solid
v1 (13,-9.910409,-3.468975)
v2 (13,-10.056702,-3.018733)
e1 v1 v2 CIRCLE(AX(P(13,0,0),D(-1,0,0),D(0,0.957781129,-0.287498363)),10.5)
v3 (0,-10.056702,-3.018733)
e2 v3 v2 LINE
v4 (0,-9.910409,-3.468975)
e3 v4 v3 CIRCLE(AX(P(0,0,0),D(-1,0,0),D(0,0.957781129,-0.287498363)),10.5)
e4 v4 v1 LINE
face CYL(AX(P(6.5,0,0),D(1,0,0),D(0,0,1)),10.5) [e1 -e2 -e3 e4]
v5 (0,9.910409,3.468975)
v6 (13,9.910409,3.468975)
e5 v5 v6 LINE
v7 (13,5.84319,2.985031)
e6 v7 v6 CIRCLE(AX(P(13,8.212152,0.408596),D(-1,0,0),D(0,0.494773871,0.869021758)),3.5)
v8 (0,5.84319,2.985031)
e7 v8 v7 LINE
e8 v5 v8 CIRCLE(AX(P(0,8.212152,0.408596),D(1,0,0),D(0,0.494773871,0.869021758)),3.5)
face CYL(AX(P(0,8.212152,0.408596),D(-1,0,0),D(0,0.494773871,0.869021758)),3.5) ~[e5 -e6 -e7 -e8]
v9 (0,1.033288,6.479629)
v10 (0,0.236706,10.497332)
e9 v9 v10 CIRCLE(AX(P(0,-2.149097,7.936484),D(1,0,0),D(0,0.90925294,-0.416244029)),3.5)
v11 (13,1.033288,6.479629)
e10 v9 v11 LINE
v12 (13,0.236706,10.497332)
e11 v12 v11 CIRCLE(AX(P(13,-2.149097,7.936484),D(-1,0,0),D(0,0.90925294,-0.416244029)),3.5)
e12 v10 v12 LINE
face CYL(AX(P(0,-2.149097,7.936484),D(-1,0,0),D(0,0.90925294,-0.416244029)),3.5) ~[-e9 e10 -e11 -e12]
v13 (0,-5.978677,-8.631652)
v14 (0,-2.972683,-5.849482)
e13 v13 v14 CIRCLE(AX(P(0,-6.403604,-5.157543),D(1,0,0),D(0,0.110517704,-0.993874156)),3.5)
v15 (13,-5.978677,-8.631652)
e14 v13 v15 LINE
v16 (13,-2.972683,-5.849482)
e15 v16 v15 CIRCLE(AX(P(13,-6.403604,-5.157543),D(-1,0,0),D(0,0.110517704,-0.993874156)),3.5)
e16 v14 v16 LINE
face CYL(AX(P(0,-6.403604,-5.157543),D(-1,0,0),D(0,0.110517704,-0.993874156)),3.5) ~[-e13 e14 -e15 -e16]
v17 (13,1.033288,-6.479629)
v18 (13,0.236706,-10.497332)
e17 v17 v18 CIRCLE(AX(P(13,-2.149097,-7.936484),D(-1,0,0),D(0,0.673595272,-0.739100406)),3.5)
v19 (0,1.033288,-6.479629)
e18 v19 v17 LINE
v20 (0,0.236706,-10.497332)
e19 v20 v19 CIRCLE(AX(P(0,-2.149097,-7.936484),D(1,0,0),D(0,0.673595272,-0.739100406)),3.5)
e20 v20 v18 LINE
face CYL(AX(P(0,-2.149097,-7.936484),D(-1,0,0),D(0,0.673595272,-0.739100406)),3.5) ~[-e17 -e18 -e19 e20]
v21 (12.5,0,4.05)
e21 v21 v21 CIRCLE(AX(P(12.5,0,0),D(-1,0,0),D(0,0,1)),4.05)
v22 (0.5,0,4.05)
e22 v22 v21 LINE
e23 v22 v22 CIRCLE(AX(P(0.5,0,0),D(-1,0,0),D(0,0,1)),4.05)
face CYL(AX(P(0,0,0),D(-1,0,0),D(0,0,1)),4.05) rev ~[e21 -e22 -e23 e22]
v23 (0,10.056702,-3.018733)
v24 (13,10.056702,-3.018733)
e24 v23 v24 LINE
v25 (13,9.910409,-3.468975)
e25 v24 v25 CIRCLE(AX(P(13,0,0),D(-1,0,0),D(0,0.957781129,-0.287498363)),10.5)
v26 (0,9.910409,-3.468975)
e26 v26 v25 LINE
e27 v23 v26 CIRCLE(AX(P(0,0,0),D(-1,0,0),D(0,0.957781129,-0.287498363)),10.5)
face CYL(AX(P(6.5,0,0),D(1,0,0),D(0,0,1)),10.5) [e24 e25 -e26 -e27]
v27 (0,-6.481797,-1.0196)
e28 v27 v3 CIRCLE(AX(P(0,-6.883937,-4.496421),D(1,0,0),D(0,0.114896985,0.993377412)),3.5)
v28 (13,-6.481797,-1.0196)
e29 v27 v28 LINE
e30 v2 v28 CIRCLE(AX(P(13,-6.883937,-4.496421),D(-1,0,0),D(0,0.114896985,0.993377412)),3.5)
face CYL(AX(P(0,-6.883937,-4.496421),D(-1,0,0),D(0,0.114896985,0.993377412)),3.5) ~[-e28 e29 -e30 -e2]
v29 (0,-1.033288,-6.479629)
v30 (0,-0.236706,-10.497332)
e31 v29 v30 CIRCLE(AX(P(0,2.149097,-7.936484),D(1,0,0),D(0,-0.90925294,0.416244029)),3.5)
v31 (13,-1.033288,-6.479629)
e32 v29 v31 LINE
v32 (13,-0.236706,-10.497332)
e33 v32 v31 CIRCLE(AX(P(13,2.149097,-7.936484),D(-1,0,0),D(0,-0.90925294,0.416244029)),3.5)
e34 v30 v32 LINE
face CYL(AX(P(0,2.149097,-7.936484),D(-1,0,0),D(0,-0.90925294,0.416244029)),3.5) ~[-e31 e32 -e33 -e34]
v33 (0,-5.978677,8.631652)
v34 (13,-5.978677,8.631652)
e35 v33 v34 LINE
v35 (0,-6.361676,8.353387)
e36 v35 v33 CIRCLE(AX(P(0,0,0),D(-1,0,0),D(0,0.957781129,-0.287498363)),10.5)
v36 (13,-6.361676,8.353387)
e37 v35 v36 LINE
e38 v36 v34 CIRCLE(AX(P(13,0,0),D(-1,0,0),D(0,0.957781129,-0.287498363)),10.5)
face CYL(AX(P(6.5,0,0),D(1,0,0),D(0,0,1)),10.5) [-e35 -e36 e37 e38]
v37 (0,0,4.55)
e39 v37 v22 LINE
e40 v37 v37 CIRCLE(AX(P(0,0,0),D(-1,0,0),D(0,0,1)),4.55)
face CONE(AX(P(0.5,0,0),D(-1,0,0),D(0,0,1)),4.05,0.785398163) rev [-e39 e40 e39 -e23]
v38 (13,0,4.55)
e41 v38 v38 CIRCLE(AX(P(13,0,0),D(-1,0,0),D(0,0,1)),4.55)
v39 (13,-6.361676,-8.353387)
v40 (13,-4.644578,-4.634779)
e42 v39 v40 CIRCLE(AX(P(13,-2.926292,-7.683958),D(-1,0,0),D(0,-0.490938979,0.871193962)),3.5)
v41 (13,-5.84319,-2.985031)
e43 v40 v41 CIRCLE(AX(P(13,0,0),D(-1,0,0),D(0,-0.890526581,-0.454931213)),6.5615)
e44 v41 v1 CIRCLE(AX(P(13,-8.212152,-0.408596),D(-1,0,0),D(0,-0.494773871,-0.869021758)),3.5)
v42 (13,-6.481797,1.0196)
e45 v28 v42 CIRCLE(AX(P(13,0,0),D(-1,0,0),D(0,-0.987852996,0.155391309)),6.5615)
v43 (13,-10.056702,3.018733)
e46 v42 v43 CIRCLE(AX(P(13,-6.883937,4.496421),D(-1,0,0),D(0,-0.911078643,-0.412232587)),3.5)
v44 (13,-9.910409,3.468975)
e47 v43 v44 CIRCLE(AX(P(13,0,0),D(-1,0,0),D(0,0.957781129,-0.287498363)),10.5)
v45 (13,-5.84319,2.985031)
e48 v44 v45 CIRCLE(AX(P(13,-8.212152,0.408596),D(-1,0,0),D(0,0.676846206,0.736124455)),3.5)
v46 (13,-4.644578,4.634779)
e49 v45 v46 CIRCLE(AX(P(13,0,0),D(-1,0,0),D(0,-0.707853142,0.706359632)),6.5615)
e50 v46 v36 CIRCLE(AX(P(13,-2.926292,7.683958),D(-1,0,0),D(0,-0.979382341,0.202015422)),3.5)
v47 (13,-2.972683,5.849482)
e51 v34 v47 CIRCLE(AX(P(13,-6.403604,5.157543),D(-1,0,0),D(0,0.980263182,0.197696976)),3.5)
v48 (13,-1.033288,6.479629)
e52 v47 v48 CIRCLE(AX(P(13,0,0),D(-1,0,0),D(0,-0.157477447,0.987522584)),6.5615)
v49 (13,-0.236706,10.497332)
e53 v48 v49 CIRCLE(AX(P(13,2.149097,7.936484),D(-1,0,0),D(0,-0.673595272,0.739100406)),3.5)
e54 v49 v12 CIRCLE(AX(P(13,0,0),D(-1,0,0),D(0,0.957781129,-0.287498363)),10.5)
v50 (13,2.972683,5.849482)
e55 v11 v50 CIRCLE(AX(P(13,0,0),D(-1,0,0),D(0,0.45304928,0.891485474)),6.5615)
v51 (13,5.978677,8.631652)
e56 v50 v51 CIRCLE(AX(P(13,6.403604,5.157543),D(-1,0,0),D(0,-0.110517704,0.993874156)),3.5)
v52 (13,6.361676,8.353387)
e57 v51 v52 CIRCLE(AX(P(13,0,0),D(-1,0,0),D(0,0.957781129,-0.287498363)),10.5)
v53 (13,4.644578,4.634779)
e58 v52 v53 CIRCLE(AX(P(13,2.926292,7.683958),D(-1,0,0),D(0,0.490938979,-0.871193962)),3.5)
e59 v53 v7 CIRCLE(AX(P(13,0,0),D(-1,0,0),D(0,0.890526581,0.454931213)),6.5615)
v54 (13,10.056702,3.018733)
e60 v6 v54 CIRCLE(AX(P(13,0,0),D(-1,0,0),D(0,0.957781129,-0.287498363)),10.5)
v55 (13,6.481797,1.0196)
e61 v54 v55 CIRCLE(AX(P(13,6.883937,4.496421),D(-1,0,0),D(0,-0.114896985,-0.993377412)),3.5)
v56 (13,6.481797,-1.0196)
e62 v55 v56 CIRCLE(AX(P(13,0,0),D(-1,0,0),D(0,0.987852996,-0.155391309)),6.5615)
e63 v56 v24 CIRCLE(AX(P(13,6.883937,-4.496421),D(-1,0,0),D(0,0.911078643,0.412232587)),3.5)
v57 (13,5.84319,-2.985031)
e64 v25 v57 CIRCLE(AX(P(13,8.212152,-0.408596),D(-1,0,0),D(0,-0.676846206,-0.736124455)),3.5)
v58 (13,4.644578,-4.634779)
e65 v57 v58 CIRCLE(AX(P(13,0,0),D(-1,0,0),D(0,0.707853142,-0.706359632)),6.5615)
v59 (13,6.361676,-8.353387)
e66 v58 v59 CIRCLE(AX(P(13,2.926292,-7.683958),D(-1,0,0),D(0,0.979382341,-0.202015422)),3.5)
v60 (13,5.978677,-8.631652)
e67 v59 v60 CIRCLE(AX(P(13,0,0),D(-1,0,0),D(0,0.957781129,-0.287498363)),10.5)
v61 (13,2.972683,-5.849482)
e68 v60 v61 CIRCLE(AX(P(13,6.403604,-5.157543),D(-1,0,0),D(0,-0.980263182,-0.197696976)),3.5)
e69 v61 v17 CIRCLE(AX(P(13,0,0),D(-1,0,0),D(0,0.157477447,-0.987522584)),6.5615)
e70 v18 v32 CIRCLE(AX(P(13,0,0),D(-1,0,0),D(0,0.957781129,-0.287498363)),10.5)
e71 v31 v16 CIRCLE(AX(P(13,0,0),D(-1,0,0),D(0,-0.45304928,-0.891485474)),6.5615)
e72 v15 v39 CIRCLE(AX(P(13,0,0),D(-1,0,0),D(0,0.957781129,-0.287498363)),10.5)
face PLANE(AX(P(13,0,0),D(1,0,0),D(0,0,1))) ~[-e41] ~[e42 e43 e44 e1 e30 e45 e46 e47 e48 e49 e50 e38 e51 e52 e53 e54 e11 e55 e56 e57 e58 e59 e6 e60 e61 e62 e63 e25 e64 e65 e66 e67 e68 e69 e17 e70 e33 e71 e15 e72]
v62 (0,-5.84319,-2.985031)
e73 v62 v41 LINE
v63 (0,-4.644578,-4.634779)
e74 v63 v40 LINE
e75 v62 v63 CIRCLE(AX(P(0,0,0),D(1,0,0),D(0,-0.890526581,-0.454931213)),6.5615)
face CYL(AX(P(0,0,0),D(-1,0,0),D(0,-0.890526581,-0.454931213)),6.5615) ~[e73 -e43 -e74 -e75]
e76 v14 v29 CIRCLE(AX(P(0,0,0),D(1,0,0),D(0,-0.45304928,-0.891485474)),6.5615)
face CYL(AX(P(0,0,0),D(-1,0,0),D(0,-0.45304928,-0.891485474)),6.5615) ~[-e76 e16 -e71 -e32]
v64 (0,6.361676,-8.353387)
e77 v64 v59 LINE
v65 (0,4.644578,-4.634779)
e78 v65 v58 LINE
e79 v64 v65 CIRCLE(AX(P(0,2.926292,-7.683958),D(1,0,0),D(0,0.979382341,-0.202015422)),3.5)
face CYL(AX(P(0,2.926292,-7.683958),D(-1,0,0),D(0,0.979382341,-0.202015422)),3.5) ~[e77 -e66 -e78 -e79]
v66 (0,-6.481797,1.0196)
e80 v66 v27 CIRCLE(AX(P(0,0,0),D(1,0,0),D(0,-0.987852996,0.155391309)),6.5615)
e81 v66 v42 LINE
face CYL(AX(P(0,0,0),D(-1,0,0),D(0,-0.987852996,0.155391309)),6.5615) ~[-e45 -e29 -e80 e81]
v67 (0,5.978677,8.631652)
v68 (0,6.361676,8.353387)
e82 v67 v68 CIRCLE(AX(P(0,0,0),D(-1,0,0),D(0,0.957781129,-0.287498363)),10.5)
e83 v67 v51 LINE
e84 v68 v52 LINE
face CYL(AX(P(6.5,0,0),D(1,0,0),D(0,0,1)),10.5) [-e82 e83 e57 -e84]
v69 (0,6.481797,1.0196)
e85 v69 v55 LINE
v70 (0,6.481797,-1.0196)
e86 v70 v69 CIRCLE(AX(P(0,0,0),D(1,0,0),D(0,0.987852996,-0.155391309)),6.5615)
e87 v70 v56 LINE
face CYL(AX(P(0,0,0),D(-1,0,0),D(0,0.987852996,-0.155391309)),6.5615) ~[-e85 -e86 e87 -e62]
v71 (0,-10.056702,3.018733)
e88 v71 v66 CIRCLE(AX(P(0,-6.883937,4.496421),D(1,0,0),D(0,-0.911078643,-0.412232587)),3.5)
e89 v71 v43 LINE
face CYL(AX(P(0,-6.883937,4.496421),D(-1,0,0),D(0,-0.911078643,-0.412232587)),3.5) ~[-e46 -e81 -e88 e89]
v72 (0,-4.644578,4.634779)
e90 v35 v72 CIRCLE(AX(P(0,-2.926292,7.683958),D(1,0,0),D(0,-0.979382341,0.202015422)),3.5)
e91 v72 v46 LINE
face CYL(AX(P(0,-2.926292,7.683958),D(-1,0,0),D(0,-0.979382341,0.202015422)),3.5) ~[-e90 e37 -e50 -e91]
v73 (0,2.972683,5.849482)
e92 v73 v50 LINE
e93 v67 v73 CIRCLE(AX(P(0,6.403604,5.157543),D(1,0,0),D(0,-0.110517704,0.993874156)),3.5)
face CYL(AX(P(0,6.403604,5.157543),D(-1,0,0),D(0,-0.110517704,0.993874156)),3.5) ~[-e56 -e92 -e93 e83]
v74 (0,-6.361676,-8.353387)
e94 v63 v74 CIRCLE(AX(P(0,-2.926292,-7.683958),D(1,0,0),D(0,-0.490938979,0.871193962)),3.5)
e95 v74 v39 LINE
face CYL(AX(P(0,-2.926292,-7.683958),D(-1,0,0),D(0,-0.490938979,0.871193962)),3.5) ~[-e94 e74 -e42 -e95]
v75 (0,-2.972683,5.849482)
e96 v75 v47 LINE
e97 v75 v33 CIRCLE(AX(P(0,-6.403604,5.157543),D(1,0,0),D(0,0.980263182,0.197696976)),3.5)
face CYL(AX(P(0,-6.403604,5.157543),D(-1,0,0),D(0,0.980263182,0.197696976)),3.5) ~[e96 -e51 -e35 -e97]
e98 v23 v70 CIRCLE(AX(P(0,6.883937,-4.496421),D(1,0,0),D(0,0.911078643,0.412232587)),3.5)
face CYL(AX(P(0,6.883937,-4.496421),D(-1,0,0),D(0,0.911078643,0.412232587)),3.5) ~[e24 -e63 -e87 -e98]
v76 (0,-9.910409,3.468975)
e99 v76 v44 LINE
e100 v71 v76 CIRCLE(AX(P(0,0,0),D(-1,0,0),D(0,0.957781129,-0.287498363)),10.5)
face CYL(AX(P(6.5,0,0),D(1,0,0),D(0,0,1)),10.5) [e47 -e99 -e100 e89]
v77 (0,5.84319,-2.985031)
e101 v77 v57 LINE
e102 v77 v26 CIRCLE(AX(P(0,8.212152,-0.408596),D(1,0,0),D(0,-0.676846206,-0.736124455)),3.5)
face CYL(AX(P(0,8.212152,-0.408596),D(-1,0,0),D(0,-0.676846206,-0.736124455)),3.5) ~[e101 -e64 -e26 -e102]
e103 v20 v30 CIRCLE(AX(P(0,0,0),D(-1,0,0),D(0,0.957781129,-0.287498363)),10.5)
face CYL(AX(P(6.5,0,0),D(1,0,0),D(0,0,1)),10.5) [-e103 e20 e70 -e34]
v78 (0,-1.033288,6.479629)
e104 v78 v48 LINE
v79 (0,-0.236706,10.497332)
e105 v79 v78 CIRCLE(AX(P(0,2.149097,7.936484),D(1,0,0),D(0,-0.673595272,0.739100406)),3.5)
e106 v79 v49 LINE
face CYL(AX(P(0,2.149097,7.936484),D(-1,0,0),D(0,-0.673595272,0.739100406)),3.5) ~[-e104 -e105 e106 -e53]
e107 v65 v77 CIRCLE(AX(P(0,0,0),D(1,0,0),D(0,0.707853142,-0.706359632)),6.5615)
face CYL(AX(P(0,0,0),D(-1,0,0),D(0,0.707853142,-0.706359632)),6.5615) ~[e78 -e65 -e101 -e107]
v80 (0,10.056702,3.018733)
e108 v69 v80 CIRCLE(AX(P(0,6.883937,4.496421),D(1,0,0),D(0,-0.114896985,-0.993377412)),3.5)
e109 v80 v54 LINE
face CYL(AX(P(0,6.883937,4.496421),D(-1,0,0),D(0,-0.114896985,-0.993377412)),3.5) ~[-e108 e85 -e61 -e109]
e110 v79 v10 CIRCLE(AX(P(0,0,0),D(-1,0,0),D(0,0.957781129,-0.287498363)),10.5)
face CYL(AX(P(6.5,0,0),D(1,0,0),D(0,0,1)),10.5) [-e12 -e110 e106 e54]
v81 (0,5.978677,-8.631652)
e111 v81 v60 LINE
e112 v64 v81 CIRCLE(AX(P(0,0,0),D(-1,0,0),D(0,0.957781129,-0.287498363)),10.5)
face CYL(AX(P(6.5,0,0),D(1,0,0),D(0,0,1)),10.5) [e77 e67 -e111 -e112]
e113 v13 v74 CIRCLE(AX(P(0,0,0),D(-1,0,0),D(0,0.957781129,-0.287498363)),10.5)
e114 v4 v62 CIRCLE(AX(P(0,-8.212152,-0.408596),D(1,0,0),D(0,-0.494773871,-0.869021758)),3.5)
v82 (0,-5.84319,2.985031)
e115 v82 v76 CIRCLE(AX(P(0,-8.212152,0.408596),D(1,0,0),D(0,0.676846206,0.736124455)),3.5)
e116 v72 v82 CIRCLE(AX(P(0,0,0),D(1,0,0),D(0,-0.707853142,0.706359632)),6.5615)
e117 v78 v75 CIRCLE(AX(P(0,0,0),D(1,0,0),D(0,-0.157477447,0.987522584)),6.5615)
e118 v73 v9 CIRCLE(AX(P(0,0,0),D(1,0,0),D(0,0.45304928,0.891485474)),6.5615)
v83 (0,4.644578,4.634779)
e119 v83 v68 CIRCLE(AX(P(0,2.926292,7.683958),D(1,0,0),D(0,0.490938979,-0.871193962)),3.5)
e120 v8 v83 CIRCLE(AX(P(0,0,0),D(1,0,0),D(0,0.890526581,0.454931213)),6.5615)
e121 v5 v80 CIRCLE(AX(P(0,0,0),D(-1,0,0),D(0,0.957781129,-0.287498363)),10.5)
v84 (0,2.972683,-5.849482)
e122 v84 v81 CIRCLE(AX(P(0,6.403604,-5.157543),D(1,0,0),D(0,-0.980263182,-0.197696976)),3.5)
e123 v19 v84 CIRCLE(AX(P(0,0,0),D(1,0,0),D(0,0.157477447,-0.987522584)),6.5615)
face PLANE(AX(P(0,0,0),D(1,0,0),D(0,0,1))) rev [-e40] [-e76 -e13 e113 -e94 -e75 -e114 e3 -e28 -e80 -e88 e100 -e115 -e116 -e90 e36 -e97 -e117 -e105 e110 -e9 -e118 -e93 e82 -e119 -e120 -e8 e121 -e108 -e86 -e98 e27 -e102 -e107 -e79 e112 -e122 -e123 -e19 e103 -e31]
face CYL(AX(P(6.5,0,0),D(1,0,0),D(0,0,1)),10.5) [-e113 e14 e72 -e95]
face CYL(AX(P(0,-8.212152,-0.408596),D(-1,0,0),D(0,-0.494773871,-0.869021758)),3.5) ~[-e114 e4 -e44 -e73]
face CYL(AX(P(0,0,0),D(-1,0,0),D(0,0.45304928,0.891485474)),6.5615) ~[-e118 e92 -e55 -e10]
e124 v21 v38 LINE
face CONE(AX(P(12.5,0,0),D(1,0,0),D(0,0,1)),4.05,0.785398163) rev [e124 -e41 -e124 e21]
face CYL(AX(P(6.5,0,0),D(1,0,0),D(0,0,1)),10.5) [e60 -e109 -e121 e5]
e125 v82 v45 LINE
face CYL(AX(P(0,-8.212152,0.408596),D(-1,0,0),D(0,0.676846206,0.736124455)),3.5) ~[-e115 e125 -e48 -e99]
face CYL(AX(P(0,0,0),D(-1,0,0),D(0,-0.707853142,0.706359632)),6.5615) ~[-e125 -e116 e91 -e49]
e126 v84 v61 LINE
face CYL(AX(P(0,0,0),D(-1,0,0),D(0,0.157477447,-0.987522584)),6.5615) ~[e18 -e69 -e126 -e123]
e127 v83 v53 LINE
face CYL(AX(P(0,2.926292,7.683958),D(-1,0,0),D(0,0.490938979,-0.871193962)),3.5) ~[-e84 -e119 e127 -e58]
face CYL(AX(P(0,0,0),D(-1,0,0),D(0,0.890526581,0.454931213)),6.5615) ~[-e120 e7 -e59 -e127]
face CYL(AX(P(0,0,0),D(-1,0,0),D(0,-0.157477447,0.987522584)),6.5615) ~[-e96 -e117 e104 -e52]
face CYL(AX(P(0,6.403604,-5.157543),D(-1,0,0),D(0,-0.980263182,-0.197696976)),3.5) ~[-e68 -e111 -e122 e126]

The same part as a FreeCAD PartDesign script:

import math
import FreeCAD as App
import Part
import Sketcher
from FreeCAD import Vector
Q = App.Units.Quantity


def edges_at(feature, points):
    """Names of the edges that pass closest to the given points."""
    edges = feature.Shape.Edges
    near = lambda p: min(range(len(edges)), key=lambda i: edges[i].distToShape(Part.Vertex(*p))[0])
    return sorted({f"Edge{near(p) + 1}" for p in points})


def add_polygon(sketch, points):
    """Adds a closed chain of lines whose ends are joined by coincident constraints."""
    first, n = sketch.GeometryCount, len(points)
    for a, b in zip(points, points[1:] + points[:1]):
        sketch.addGeometry(Part.LineSegment(App.Vector(*a, 0), App.Vector(*b, 0)), False)
    for i in range(n):
        sketch.addConstraint(Sketcher.Constraint("Coincident", first + i, 2, first + (i + 1) % n, 1))

doc = App.newDocument("Part")
body = doc.addObject("PartDesign::Body", "Body")

# Sketch on XZ plane
sketch1 = doc.addObject("Sketcher::SketchObject", "Sketch")
body.addObject(sketch1)
sketch1.AttachmentSupport = (doc.XZ_Plane, [""])
sketch1.MapMode = "FlatFace"
add_polygon(sketch1, [(0, -10), (0, 0), (13, 0), (13, -10)])  # lines 0-3
sketch1.addConstraint([
    Sketcher.Constraint("Vertical", 0),
    Sketcher.Constraint("Horizontal", 1),
    Sketcher.Constraint("Vertical", 2),
    Sketcher.Constraint("Horizontal", 3),
    Sketcher.Constraint("Coincident", 0, 2, -1, 1),
    Sketcher.Constraint("DistanceX", 1, 1, 1, 2, Q("13 mm")),
    Sketcher.Constraint("DistanceY", 0, 1, 0, 2, Q("10.5 mm")),
])
revolution = doc.addObject("PartDesign::Revolution", "Revolution")
body.addObject(revolution)
revolution.Profile = sketch1
revolution.ReferenceAxis = (sketch1, ["H_Axis"])
revolution.Angle = 360

# Sketch on YZ plane
sketch2 = doc.addObject("Sketcher::SketchObject", "Sketch001")
body.addObject(sketch2)
sketch2.AttachmentSupport = (doc.YZ_Plane, [""])
sketch2.MapMode = "FlatFace"
sketch2.addGeometry([
    Part.ArcOfCircle(Part.Circle(Vector(0, 0, 0), Vector(0, 0, 1), 6.6), math.radians(-8.94), math.radians(8.94)),
    Part.ArcOfCircle(Part.Circle(Vector(6.9, -4.5, 0), Vector(0, 0, 1), 3.5), math.radians(24), math.radians(97)),
    Part.ArcOfCircle(Part.Circle(Vector(0, 0, 0), Vector(0, 0, 1), 10.5), math.radians(-17), math.radians(17)),
    Part.ArcOfCircle(Part.Circle(Vector(6.9, 4.5, 0), Vector(0, 0, 1), 3.5), math.radians(-97), math.radians(-24)),
], False)
sketch2.addConstraint([
    Sketcher.Constraint("Coincident", 0, 1, 1, 2),
    Sketcher.Constraint("Coincident", 1, 1, 2, 1),
    Sketcher.Constraint("Coincident", 2, 2, 3, 2),
    Sketcher.Constraint("Coincident", 3, 1, 0, 2),
    Sketcher.Constraint("Coincident", 0, 3, -1, 1),
    Sketcher.Constraint("Coincident", 2, 3, -1, 1),
    Sketcher.Constraint("Equal", 1, 3),
    Sketcher.Constraint("Symmetric", 1, 3, 3, 3, -1),
    Sketcher.Constraint("Radius", 1, Q("3.5 mm")),
    Sketcher.Constraint("Radius", 0, Q("6.5615 mm")),
    Sketcher.Constraint("Radius", 2, Q("10.5254 mm")),
    Sketcher.Constraint("DistanceY", 0, 1, -1, 1, Q("1.0196 mm")),
    Sketcher.Constraint("DistanceY", 1, 3, -1, 1, Q("4.496421 mm")),
])
pocket1 = doc.addObject("PartDesign::Pocket", "Pocket")
body.addObject(pocket1)
pocket1.Profile = sketch2
pocket1.Type = "ThroughAll"
pocket1.Reversed = True
doc.recompute()

polarpattern = doc.addObject("PartDesign::PolarPattern", "PolarPattern")
body.addObject(polarpattern)
polarpattern.Originals = [pocket1]
polarpattern.Axis = (doc.X_Axis, [""])
polarpattern.Angle = 360
polarpattern.Occurrences = 10
body.Tip = polarpattern

# Sketch on YZ plane
sketch3 = doc.addObject("Sketcher::SketchObject", "Sketch002")
body.addObject(sketch3)
sketch3.AttachmentSupport = (doc.YZ_Plane, [""])
sketch3.MapMode = "FlatFace"
sketch3.addGeometry(Part.Circle(Vector(0, 0, 0), Vector(0, 0, 1), 1.5), False)
sketch3.addConstraint([
    Sketcher.Constraint("Coincident", 0, 3, -1, 1),
    Sketcher.Constraint("Diameter", 0, Q("3 mm")),
])
pocket2 = doc.addObject("PartDesign::Pocket", "Pocket001")
body.addObject(pocket2)
pocket2.Profile = sketch3
pocket2.Length = 100.000102
pocket2.Midplane = True

# Sketch on YZ plane
sketch4 = doc.addObject("Sketcher::SketchObject", "Sketch003")
body.addObject(sketch4)
sketch4.AttachmentSupport = (doc.YZ_Plane, [""])
sketch4.MapMode = "FlatFace"
sketch4.addGeometry(Part.Circle(Vector(0, 0, 0), Vector(0, 0, 1), 4), False)
sketch4.addConstraint([
    Sketcher.Constraint("Coincident", 0, 3, -1, 1),
    Sketcher.Constraint("Diameter", 0, Q("8.1 mm")),
])
pocket3 = doc.addObject("PartDesign::Pocket", "Pocket002")
body.addObject(pocket3)
pocket3.Profile = sketch4
pocket3.Length = 13
pocket3.Reversed = True
doc.recompute()

chamfer = doc.addObject("PartDesign::Chamfer", "Chamfer")
body.addObject(chamfer)
chamfer.Base = (pocket3, edges_at(pocket3, [(0, 0, -4.05), (13, 0, -4.05)]))
chamfer.Size = 0.5

doc.recompute()
